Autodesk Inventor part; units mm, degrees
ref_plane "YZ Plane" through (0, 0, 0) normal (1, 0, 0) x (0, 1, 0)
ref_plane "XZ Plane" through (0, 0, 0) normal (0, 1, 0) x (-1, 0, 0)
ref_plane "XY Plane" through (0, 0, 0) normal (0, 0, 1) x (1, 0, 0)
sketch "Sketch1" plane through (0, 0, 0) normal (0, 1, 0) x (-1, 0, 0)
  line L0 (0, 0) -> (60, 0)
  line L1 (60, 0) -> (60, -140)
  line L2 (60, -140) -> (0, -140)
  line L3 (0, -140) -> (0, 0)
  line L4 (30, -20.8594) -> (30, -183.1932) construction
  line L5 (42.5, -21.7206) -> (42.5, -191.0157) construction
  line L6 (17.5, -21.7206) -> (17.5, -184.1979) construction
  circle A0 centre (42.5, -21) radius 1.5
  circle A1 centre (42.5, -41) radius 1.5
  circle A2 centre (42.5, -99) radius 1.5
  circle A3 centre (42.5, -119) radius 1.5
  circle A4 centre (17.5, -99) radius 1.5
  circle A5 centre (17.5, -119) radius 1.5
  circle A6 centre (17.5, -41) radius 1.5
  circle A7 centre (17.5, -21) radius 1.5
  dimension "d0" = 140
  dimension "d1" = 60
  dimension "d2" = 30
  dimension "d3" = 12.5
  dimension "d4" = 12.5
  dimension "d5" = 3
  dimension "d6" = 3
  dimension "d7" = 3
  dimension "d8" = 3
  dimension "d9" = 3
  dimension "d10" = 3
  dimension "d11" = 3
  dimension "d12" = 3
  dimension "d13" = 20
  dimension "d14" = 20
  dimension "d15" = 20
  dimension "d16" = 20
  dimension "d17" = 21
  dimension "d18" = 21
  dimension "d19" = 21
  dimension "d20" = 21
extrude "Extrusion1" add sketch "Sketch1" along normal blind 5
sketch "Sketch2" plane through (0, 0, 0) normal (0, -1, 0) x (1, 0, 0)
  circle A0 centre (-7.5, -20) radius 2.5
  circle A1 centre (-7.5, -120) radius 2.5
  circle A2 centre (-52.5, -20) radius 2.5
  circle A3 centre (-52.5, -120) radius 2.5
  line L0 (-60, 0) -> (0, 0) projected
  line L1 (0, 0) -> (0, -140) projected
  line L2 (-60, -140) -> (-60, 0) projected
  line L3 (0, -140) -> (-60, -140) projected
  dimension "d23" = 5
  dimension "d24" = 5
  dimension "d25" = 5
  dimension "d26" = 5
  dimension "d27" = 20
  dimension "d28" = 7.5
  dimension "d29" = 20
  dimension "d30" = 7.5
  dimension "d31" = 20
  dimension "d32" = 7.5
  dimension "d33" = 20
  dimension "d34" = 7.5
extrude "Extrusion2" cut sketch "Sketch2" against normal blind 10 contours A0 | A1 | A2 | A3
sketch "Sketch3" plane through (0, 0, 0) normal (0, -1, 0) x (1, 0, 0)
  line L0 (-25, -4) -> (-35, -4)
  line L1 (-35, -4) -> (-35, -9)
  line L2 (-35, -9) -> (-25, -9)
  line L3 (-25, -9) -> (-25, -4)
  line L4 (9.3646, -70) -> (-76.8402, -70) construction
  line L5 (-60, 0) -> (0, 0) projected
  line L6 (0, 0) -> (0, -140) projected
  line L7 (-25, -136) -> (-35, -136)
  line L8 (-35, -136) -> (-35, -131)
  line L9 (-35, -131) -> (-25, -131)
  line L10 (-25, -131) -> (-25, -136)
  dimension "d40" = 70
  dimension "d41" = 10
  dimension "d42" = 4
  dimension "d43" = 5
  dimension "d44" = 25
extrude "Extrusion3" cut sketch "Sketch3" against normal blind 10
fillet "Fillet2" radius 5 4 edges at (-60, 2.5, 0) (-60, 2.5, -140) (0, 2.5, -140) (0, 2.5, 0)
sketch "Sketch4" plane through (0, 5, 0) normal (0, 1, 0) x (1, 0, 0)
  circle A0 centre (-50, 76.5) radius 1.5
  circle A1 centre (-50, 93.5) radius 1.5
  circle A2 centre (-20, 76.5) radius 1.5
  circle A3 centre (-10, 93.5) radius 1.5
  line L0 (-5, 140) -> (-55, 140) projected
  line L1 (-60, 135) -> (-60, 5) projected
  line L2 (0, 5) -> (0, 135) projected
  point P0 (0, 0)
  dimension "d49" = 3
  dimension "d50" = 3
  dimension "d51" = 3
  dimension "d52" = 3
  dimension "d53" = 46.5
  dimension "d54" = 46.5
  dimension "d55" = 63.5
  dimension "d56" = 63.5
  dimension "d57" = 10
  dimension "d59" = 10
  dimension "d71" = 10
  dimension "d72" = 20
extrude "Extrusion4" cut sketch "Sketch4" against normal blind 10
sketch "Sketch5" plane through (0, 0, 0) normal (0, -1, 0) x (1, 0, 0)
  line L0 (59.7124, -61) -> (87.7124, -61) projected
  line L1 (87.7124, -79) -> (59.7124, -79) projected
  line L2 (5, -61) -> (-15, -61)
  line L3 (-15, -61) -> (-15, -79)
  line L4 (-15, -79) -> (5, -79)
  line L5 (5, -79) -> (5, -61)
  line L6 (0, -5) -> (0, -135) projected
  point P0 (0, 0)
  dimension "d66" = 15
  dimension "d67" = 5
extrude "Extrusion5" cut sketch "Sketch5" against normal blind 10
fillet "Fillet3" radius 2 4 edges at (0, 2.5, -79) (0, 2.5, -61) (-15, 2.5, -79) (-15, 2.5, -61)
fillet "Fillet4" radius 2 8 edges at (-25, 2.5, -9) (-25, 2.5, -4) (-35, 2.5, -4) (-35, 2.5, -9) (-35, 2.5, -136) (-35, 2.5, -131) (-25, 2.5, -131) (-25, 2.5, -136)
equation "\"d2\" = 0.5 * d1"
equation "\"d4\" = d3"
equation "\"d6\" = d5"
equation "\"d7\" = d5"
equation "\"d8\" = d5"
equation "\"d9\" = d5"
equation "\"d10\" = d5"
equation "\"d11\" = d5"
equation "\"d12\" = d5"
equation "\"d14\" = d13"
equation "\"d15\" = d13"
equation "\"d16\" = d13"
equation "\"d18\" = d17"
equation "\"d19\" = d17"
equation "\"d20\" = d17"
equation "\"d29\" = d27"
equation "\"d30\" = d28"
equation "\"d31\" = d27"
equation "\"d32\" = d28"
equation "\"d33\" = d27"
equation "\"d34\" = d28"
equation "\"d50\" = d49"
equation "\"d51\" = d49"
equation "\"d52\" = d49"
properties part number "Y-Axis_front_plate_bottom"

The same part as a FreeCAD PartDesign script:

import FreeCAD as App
import Part
import Sketcher

V = App.Vector


def edges_at(feature, points):
    """Names of the edges that pass closest to the given points."""
    edges = feature.Shape.Edges
    near = lambda p: min(range(len(edges)), key=lambda i: edges[i].distToShape(Part.Vertex(*p))[0])
    return sorted({f"Edge{near(p) + 1}" for p in points})

doc = App.newDocument("Part")
body = doc.addObject("PartDesign::Body", "Body")

# Sketch on XZ plane
sketch1 = body.newObject("Sketcher::SketchObject", "Sketch")
sketch1.AttachmentSupport = (doc.getObject("XZ_Plane"), [""])
sketch1.MapMode = "FlatFace"
sketch1.addGeometry(Part.LineSegment(V(-60, 0, 0), V(0, 0, 0)), False)
sketch1.addGeometry(Part.LineSegment(V(0, 0, 0), V(0, -140, 0)), False)
sketch1.addGeometry(Part.LineSegment(V(0, -140, 0), V(-60, -140, 0)), False)
sketch1.addGeometry(Part.LineSegment(V(-60, -140, 0), V(-60, 0, 0)), False)
sketch1.addGeometry(Part.Circle(V(-17.5, -119, 0), V(0, 0, 1), 1.5), False)
sketch1.addGeometry(Part.Circle(V(-17.5, -99, 0), V(0, 0, 1), 1.5), False)
sketch1.addGeometry(Part.Circle(V(-42.5, -119, 0), V(0, 0, 1), 1.5), False)
sketch1.addGeometry(Part.Circle(V(-42.5, -99, 0), V(0, 0, 1), 1.5), False)
sketch1.addGeometry(Part.Circle(V(-17.5, -41, 0), V(0, 0, 1), 1.5), False)
sketch1.addGeometry(Part.Circle(V(-17.5, -21, 0), V(0, 0, 1), 1.5), False)
sketch1.addGeometry(Part.Circle(V(-42.5, -41, 0), V(0, 0, 1), 1.5), False)
sketch1.addGeometry(Part.Circle(V(-42.5, -21, 0), V(0, 0, 1), 1.5), False)
sketch1.addConstraint(Sketcher.Constraint("Coincident", 0, 2, 1, 1))
sketch1.addConstraint(Sketcher.Constraint("Coincident", 1, 2, 2, 1))
sketch1.addConstraint(Sketcher.Constraint("Coincident", 2, 2, 3, 1))
sketch1.addConstraint(Sketcher.Constraint("Coincident", 3, 2, 0, 1))
sketch1.addConstraint(Sketcher.Constraint("Horizontal", 0))
sketch1.addConstraint(Sketcher.Constraint("Vertical", 1))
sketch1.addConstraint(Sketcher.Constraint("Horizontal", 2))
sketch1.addConstraint(Sketcher.Constraint("Vertical", 3))
sketch1.addConstraint(Sketcher.Constraint("Coincident", 0, 2, -1, 1))
sketch1.addConstraint(Sketcher.Constraint("Equal", 4, 5))
sketch1.addConstraint(Sketcher.Constraint("Equal", 5, 6))
sketch1.addConstraint(Sketcher.Constraint("Equal", 6, 7))
sketch1.addConstraint(Sketcher.Constraint("Equal", 7, 8))
sketch1.addConstraint(Sketcher.Constraint("Equal", 8, 9))
sketch1.addConstraint(Sketcher.Constraint("Equal", 9, 10))
sketch1.addConstraint(Sketcher.Constraint("Equal", 10, 11))
sketch1.addConstraint(Sketcher.Constraint("Horizontal", 4, 3, 6, 3))
sketch1.addConstraint(Sketcher.Constraint("Horizontal", 5, 3, 7, 3))
sketch1.addConstraint(Sketcher.Constraint("Horizontal", 8, 3, 10, 3))
sketch1.addConstraint(Sketcher.Constraint("Horizontal", 9, 3, 11, 3))
sketch1.addConstraint(Sketcher.Constraint("Vertical", 4, 3, 5, 3))
sketch1.addConstraint(Sketcher.Constraint("Vertical", 6, 3, 7, 3))
sketch1.addConstraint(Sketcher.Constraint("Vertical", 5, 3, 8, 3))
sketch1.addConstraint(Sketcher.Constraint("Vertical", 8, 3, 9, 3))
sketch1.addConstraint(Sketcher.Constraint("Vertical", 7, 3, 10, 3))
sketch1.addConstraint(Sketcher.Constraint("Vertical", 10, 3, 11, 3))
sketch1.addConstraint(Sketcher.Constraint("Diameter", 4, 3.0))
sketch1.addConstraint(Sketcher.Constraint("DistanceX", 0, 1, 0, 2, 60.0))
sketch1.addConstraint(Sketcher.Constraint("DistanceY", 1, 2, 1, 1, 140.0))
sketch1.addConstraint(Sketcher.Constraint("DistanceY", 9, 3, -1, 1, 21.0))
sketch1.addConstraint(Sketcher.Constraint("DistanceY", 4, 3, 5, 3, 20.0))
sketch1.addConstraint(Sketcher.Constraint("DistanceY", 8, 3, 9, 3, 20.0))
sketch1.addConstraint(Sketcher.Constraint("DistanceY", 1, 2, 4, 3, 21.0))
sketch1.addConstraint(Sketcher.Constraint("DistanceX", 6, 3, 4, 3, 25.0))
sketch1.addConstraint(Sketcher.Constraint("DistanceX", 4, 3, -1, 1, 17.5))
pad1 = body.newObject("PartDesign::Pad", "Pad")
pad1.Profile = sketch1
pad1.Length = 5
pad1.Reversed = True

# Sketch on XZ plane
sketch2 = body.newObject("Sketcher::SketchObject", "Sketch001")
sketch2.AttachmentSupport = (doc.getObject("XZ_Plane"), [""])
sketch2.MapMode = "FlatFace"
sketch2.addGeometry(Part.Circle(V(-7.5, -20, 0), V(0, 0, 1), 2.5), False)
sketch2.addGeometry(Part.Circle(V(-7.5, -120, 0), V(0, 0, 1), 2.5), False)
sketch2.addGeometry(Part.Circle(V(-52.5, -20, 0), V(0, 0, 1), 2.5), False)
sketch2.addGeometry(Part.Circle(V(-52.5, -120, 0), V(0, 0, 1), 2.5), False)
sketch2.addConstraint(Sketcher.Constraint("Equal", 0, 1))
sketch2.addConstraint(Sketcher.Constraint("Equal", 1, 2))
sketch2.addConstraint(Sketcher.Constraint("Equal", 2, 3))
sketch2.addConstraint(Sketcher.Constraint("Horizontal", 0, 3, 2, 3))
sketch2.addConstraint(Sketcher.Constraint("Horizontal", 1, 3, 3, 3))
sketch2.addConstraint(Sketcher.Constraint("Vertical", 0, 3, 1, 3))
sketch2.addConstraint(Sketcher.Constraint("Vertical", 2, 3, 3, 3))
sketch2.addConstraint(Sketcher.Constraint("Diameter", 0, 5.0))
sketch2.addConstraint(Sketcher.Constraint("DistanceY", 0, 3, -1, 1, 20.0))
sketch2.addConstraint(Sketcher.Constraint("DistanceX", 0, 3, -1, 1, 7.5))
sketch2.addConstraint(Sketcher.Constraint("DistanceY", 1, 3, -1, 1, 120.0))
sketch2.addConstraint(Sketcher.Constraint("DistanceX", 2, 3, 0, 3, 45.0))
pocket1 = body.newObject("PartDesign::Pocket", "Pocket")
pocket1.Profile = sketch2
pocket1.Length = 10

# Sketch on XZ plane
sketch3 = body.newObject("Sketcher::SketchObject", "Sketch002")
sketch3.AttachmentSupport = (doc.getObject("XZ_Plane"), [""])
sketch3.MapMode = "FlatFace"
sketch3.addGeometry(Part.LineSegment(V(-25, -9, 0), V(-25, -4, 0)), False)
sketch3.addGeometry(Part.LineSegment(V(-25, -4, 0), V(-35, -4, 0)), False)
sketch3.addGeometry(Part.LineSegment(V(-35, -4, 0), V(-35, -9, 0)), False)
sketch3.addGeometry(Part.LineSegment(V(-35, -9, 0), V(-25, -9, 0)), False)
sketch3.addGeometry(Part.LineSegment(V(-35, -136, 0), V(-25, -136, 0)), False)
sketch3.addGeometry(Part.LineSegment(V(-25, -136, 0), V(-25, -131, 0)), False)
sketch3.addGeometry(Part.LineSegment(V(-25, -131, 0), V(-35, -131, 0)), False)
sketch3.addGeometry(Part.LineSegment(V(-35, -131, 0), V(-35, -136, 0)), False)
sketch3.addConstraint(Sketcher.Constraint("Coincident", 0, 2, 1, 1))
sketch3.addConstraint(Sketcher.Constraint("Coincident", 1, 2, 2, 1))
sketch3.addConstraint(Sketcher.Constraint("Coincident", 2, 2, 3, 1))
sketch3.addConstraint(Sketcher.Constraint("Coincident", 3, 2, 0, 1))
sketch3.addConstraint(Sketcher.Constraint("Coincident", 4, 2, 5, 1))
sketch3.addConstraint(Sketcher.Constraint("Coincident", 5, 2, 6, 1))
sketch3.addConstraint(Sketcher.Constraint("Coincident", 6, 2, 7, 1))
sketch3.addConstraint(Sketcher.Constraint("Coincident", 7, 2, 4, 1))
sketch3.addConstraint(Sketcher.Constraint("Vertical", 0))
sketch3.addConstraint(Sketcher.Constraint("Horizontal", 1))
sketch3.addConstraint(Sketcher.Constraint("Vertical", 2))
sketch3.addConstraint(Sketcher.Constraint("Horizontal", 3))
sketch3.addConstraint(Sketcher.Constraint("Horizontal", 4))
sketch3.addConstraint(Sketcher.Constraint("Vertical", 5))
sketch3.addConstraint(Sketcher.Constraint("Horizontal", 6))
sketch3.addConstraint(Sketcher.Constraint("Vertical", 7))
sketch3.addConstraint(Sketcher.Constraint("Vertical", 3, 2, 4, 2))
sketch3.addConstraint(Sketcher.Constraint("Vertical", 2, 2, 6, 2))
sketch3.addConstraint(Sketcher.Constraint("Equal", 2, 5))
sketch3.addConstraint(Sketcher.Constraint("DistanceX", 1, 2, 1, 1, 10.0))
sketch3.addConstraint(Sketcher.Constraint("DistanceY", 0, 1, 0, 2, 5.0))
sketch3.addConstraint(Sketcher.Constraint("DistanceX", 0, 2, -1, 1, 25.0))
sketch3.addConstraint(Sketcher.Constraint("DistanceY", 0, 2, -1, 1, 4.0))
sketch3.addConstraint(Sketcher.Constraint("DistanceY", 4, 2, -1, 1, 136.0))
pocket2 = body.newObject("PartDesign::Pocket", "Pocket001")
pocket2.Profile = sketch3
pocket2.Length = 10
doc.recompute()

fillet = body.newObject("PartDesign::Fillet", "Fillet")
fillet.Base = (pocket2, edges_at(pocket2, [
    (-60, 2.5, 0),
    (-60, 2.5, -140),
    (0, 2.5, -140),
    (0, 2.5, 0),
]))
fillet.Radius = 5

# Sketch on XZ plane
sketch4 = body.newObject("Sketcher::SketchObject", "Sketch003")
sketch4.AttachmentSupport = (doc.getObject("XZ_Plane"), [""])
sketch4.MapMode = "FlatFace"
sketch4.AttachmentOffset = App.Placement(V(0, 0, -5), App.Rotation())
sketch4.addGeometry(Part.Circle(V(-50, -76.5, 0), V(0, 0, 1), 1.5), False)
sketch4.addGeometry(Part.Circle(V(-50, -93.5, 0), V(0, 0, 1), 1.5), False)
sketch4.addGeometry(Part.Circle(V(-20, -76.5, 0), V(0, 0, 1), 1.5), False)
sketch4.addGeometry(Part.Circle(V(-10, -93.5, 0), V(0, 0, 1), 1.5), False)
sketch4.addConstraint(Sketcher.Constraint("Equal", 0, 1))
sketch4.addConstraint(Sketcher.Constraint("Equal", 1, 2))
sketch4.addConstraint(Sketcher.Constraint("Equal", 2, 3))
sketch4.addConstraint(Sketcher.Constraint("Horizontal", 0, 3, 2, 3))
sketch4.addConstraint(Sketcher.Constraint("Horizontal", 1, 3, 3, 3))
sketch4.addConstraint(Sketcher.Constraint("Vertical", 0, 3, 1, 3))
sketch4.addConstraint(Sketcher.Constraint("Diameter", 0, 3.0))
sketch4.addConstraint(Sketcher.Constraint("DistanceX", 2, 3, -1, 1, 20.0))
sketch4.addConstraint(Sketcher.Constraint("DistanceX", 3, 3, -1, 1, 10.0))
sketch4.addConstraint(Sketcher.Constraint("DistanceX", 0, 3, -1, 1, 50.0))
sketch4.addConstraint(Sketcher.Constraint("DistanceY", 1, 3, 0, 3, 17.0))
sketch4.addConstraint(Sketcher.Constraint("DistanceY", 0, 3, -1, 1, 76.5))
pocket3 = body.newObject("PartDesign::Pocket", "Pocket002")
pocket3.Profile = sketch4
pocket3.Length = 10
pocket3.Reversed = True

# Sketch on XZ plane
sketch5 = body.newObject("Sketcher::SketchObject", "Sketch004")
sketch5.AttachmentSupport = (doc.getObject("XZ_Plane"), [""])
sketch5.MapMode = "FlatFace"
sketch5.addGeometry(Part.LineSegment(V(5, -79, 0), V(5, -61, 0)), False)
sketch5.addGeometry(Part.LineSegment(V(5, -61, 0), V(-15, -61, 0)), False)
sketch5.addGeometry(Part.LineSegment(V(-15, -61, 0), V(-15, -79, 0)), False)
sketch5.addGeometry(Part.LineSegment(V(-15, -79, 0), V(5, -79, 0)), False)
sketch5.addConstraint(Sketcher.Constraint("Coincident", 0, 2, 1, 1))
sketch5.addConstraint(Sketcher.Constraint("Coincident", 1, 2, 2, 1))
sketch5.addConstraint(Sketcher.Constraint("Coincident", 2, 2, 3, 1))
sketch5.addConstraint(Sketcher.Constraint("Coincident", 3, 2, 0, 1))
sketch5.addConstraint(Sketcher.Constraint("Vertical", 0))
sketch5.addConstraint(Sketcher.Constraint("Horizontal", 1))
sketch5.addConstraint(Sketcher.Constraint("Vertical", 2))
sketch5.addConstraint(Sketcher.Constraint("Horizontal", 3))
sketch5.addConstraint(Sketcher.Constraint("DistanceX", -1, 1, 0, 2, 5.0))
sketch5.addConstraint(Sketcher.Constraint("DistanceX", 1, 2, -1, 1, 15.0))
sketch5.addConstraint(Sketcher.Constraint("DistanceY", 0, 1, 0, 2, 18.0))
sketch5.addConstraint(Sketcher.Constraint("DistanceY", 0, 2, -1, 1, 61.0))
pocket4 = body.newObject("PartDesign::Pocket", "Pocket003")
pocket4.Profile = sketch5
pocket4.Length = 10
doc.recompute()

fillet2 = body.newObject("PartDesign::Fillet", "Fillet001")
fillet2.Base = (pocket4, edges_at(pocket4, [
    (0, 2.5, -79),
    (0, 2.5, -61),
    (-15, 2.5, -79),
    (-15, 2.5, -61),
]))
fillet2.Radius = 2
doc.recompute()

fillet3 = body.newObject("PartDesign::Fillet", "Fillet002")
fillet3.Base = (fillet2, edges_at(fillet2, [
    (-25, 2.5, -9),
    (-25, 2.5, -4),
    (-35, 2.5, -4),
    (-35, 2.5, -9),
    (-35, 2.5, -136),
    (-35, 2.5, -131),
    (-25, 2.5, -131),
    (-25, 2.5, -136),
]))
fillet3.Radius = 2

doc.recompute()
